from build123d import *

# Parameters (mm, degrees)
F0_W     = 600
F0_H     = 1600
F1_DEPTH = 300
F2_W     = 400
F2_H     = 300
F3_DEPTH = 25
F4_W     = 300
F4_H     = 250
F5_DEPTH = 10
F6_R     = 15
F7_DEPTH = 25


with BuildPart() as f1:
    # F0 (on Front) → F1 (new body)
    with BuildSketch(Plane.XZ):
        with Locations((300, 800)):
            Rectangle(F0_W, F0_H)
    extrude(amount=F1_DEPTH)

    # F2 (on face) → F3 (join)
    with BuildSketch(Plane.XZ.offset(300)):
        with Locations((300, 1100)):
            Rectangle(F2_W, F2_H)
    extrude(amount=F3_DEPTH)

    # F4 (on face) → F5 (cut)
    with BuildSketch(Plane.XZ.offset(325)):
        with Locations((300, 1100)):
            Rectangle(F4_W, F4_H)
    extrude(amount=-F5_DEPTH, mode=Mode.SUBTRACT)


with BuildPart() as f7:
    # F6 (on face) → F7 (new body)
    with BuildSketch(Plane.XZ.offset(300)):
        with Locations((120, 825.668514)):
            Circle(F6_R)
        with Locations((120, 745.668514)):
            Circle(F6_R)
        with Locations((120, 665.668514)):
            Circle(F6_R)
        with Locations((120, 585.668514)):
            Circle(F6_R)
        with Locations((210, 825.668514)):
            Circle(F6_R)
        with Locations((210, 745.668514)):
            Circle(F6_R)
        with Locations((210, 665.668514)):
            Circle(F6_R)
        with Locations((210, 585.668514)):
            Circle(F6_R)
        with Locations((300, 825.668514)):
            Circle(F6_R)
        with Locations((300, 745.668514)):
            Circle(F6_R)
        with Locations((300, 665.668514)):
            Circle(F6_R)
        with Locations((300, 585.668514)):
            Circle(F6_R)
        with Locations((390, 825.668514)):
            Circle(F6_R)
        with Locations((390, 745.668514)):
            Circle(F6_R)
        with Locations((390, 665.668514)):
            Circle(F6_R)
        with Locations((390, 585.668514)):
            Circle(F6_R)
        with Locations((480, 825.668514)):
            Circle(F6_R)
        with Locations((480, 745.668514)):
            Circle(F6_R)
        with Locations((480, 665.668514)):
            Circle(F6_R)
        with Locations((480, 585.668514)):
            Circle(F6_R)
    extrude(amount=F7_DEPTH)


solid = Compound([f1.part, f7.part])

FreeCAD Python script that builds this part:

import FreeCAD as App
import Part
import Sketcher


def add_polygon(sketch, points):
    """Adds a closed chain of lines whose ends are joined by coincident constraints."""
    first, n = sketch.GeometryCount, len(points)
    for a, b in zip(points, points[1:] + points[:1]):
        sketch.addGeometry(Part.LineSegment(App.Vector(*a, 0), App.Vector(*b, 0)), False)
    for i in range(n):
        sketch.addConstraint(Sketcher.Constraint("Coincident", first + i, 2, first + (i + 1) % n, 1))

doc = App.newDocument("Part")
body = doc.addObject("PartDesign::Body", "Body")

sketch1 = doc.addObject("Sketcher::SketchObject", "Sketch")
body.addObject(sketch1)
sketch1.AttachmentSupport = (doc.XZ_Plane, [""])
sketch1.MapMode = "FlatFace"
add_polygon(sketch1, [(0, 1600), (0, 0), (600, 0), (600, 1600)])
sketch1.addConstraint([
    Sketcher.Constraint("Vertical", 0),
    Sketcher.Constraint("Horizontal", 1),
    Sketcher.Constraint("Vertical", 2),
    Sketcher.Constraint("Horizontal", 3),
    Sketcher.Constraint("Coincident", 0, 2, -1, 1),
    Sketcher.Constraint("DistanceX", 1, 1, 1, 2, 600.0),
    Sketcher.Constraint("DistanceY", 0, 2, 0, 1, 1600.0),
])
pad1 = doc.addObject("PartDesign::Pad", "Pad")
body.addObject(pad1)
pad1.Profile = sketch1
pad1.Length = 300

sketch2 = doc.addObject("Sketcher::SketchObject", "Sketch001")
body.addObject(sketch2)
sketch2.AttachmentSupport = (doc.XZ_Plane, [""])
sketch2.MapMode = "FlatFace"
sketch2.AttachmentOffset = App.Placement(App.Vector(0, 0, 300), App.Rotation())
add_polygon(sketch2, [(100, 1250), (100, 950), (500, 950), (500, 1250)])
sketch2.addConstraint([
    Sketcher.Constraint("Vertical", 0),
    Sketcher.Constraint("Horizontal", 1),
    Sketcher.Constraint("Vertical", 2),
    Sketcher.Constraint("Horizontal", 3),
    Sketcher.Constraint("DistanceX", 1, 1, 1, 2, 400.0),
    Sketcher.Constraint("DistanceY", 0, 2, 0, 1, 300.0),
    Sketcher.Constraint("DistanceX", -1, 1, 0, 2, 100.0),
    Sketcher.Constraint("DistanceY", -1, 1, 0, 2, 950.0),
])
pad2 = doc.addObject("PartDesign::Pad", "Pad001")
body.addObject(pad2)
pad2.Profile = sketch2
pad2.Length = 25

sketch3 = doc.addObject("Sketcher::SketchObject", "Sketch002")
body.addObject(sketch3)
sketch3.AttachmentSupport = (doc.XZ_Plane, [""])
sketch3.MapMode = "FlatFace"
sketch3.AttachmentOffset = App.Placement(App.Vector(0, 0, 325), App.Rotation())
add_polygon(sketch3, [(150, 1225), (150, 975), (450, 975), (450, 1225)])
sketch3.addConstraint([
    Sketcher.Constraint("Vertical", 0),
    Sketcher.Constraint("Horizontal", 1),
    Sketcher.Constraint("Vertical", 2),
    Sketcher.Constraint("Horizontal", 3),
    Sketcher.Constraint("DistanceX", 1, 1, 1, 2, 300.0),
    Sketcher.Constraint("DistanceY", 0, 2, 0, 1, 250.0),
    Sketcher.Constraint("DistanceX", -1, 1, 0, 2, 150.0),
    Sketcher.Constraint("DistanceY", -1, 1, 0, 2, 975.0),
])
pocket1 = doc.addObject("PartDesign::Pocket", "Pocket")
body.addObject(pocket1)
pocket1.Profile = sketch3
pocket1.Length = 10
body2 = doc.addObject("PartDesign::Body", "Body001")
body2.AllowCompound = True

sketch4 = doc.addObject("Sketcher::SketchObject", "Sketch003")
body2.addObject(sketch4)
sketch4.AttachmentSupport = (doc.getObject("XZ_Plane001"), [""])
sketch4.MapMode = "FlatFace"
sketch4.AttachmentOffset = App.Placement(App.Vector(0, 0, 300), App.Rotation())
sketch4.addGeometry([
    Part.Circle(App.Vector(120, 825.668514, 0), App.Vector(0, 0, 1), 15),
    Part.Circle(App.Vector(120, 745.668514, 0), App.Vector(0, 0, 1), 15),
    Part.Circle(App.Vector(120, 665.668514, 0), App.Vector(0, 0, 1), 15),
    Part.Circle(App.Vector(120, 585.668514, 0), App.Vector(0, 0, 1), 15),
    Part.Circle(App.Vector(210, 825.668514, 0), App.Vector(0, 0, 1), 15),
    Part.Circle(App.Vector(210, 745.668514, 0), App.Vector(0, 0, 1), 15),
    Part.Circle(App.Vector(210, 665.668514, 0), App.Vector(0, 0, 1), 15),
    Part.Circle(App.Vector(210, 585.668514, 0), App.Vector(0, 0, 1), 15),
    Part.Circle(App.Vector(300, 825.668514, 0), App.Vector(0, 0, 1), 15),
    Part.Circle(App.Vector(300, 745.668514, 0), App.Vector(0, 0, 1), 15),
    Part.Circle(App.Vector(300, 665.668514, 0), App.Vector(0, 0, 1), 15),
    Part.Circle(App.Vector(300, 585.668514, 0), App.Vector(0, 0, 1), 15),
    Part.Circle(App.Vector(390, 825.668514, 0), App.Vector(0, 0, 1), 15),
    Part.Circle(App.Vector(390, 745.668514, 0), App.Vector(0, 0, 1), 15),
    Part.Circle(App.Vector(390, 665.668514, 0), App.Vector(0, 0, 1), 15),
    Part.Circle(App.Vector(390, 585.668514, 0), App.Vector(0, 0, 1), 15),
    Part.Circle(App.Vector(480, 825.668514, 0), App.Vector(0, 0, 1), 15),
    Part.Circle(App.Vector(480, 745.668514, 0), App.Vector(0, 0, 1), 15),
    Part.Circle(App.Vector(480, 665.668514, 0), App.Vector(0, 0, 1), 15),
    Part.Circle(App.Vector(480, 585.668514, 0), App.Vector(0, 0, 1), 15),
], False)
sketch4.addConstraint([
    Sketcher.Constraint("Equal", 0, 1),
    Sketcher.Constraint("Equal", 1, 2),
    Sketcher.Constraint("Equal", 2, 3),
    Sketcher.Constraint("Equal", 3, 4),
    Sketcher.Constraint("Equal", 4, 5),
    Sketcher.Constraint("Equal", 5, 6),
    Sketcher.Constraint("Equal", 6, 7),
    Sketcher.Constraint("Equal", 7, 8),
    Sketcher.Constraint("Equal", 8, 9),
    Sketcher.Constraint("Equal", 9, 10),
    Sketcher.Constraint("Equal", 10, 11),
    Sketcher.Constraint("Equal", 11, 12),
    Sketcher.Constraint("Equal", 12, 13),
    Sketcher.Constraint("Equal", 13, 14),
    Sketcher.Constraint("Equal", 14, 15),
    Sketcher.Constraint("Equal", 15, 16),
    Sketcher.Constraint("Equal", 16, 17),
    Sketcher.Constraint("Equal", 17, 18),
    Sketcher.Constraint("Equal", 18, 19),
    Sketcher.Constraint("Horizontal", 0, 3, 4, 3),
    Sketcher.Constraint("Horizontal", 1, 3, 5, 3),
    Sketcher.Constraint("Horizontal", 2, 3, 6, 3),
    Sketcher.Constraint("Horizontal", 3, 3, 7, 3),
    Sketcher.Constraint("Horizontal", 4, 3, 8, 3),
    Sketcher.Constraint("Horizontal", 5, 3, 9, 3),
    Sketcher.Constraint("Horizontal", 6, 3, 10, 3),
    Sketcher.Constraint("Horizontal", 7, 3, 11, 3),
    Sketcher.Constraint("Horizontal", 8, 3, 12, 3),
    Sketcher.Constraint("Horizontal", 9, 3, 13, 3),
    Sketcher.Constraint("Horizontal", 10, 3, 14, 3),
    Sketcher.Constraint("Horizontal", 11, 3, 15, 3),
    Sketcher.Constraint("Horizontal", 12, 3, 16, 3),
    Sketcher.Constraint("Horizontal", 13, 3, 17, 3),
    Sketcher.Constraint("Horizontal", 14, 3, 18, 3),
    Sketcher.Constraint("Horizontal", 15, 3, 19, 3),
    Sketcher.Constraint("Vertical", 0, 3, 1, 3),
    Sketcher.Constraint("Vertical", 1, 3, 2, 3),
    Sketcher.Constraint("Vertical", 2, 3, 3, 3),
    Sketcher.Constraint("Vertical", 4, 3, 5, 3),
    Sketcher.Constraint("Vertical", 5, 3, 6, 3),
    Sketcher.Constraint("Vertical", 6, 3, 7, 3),
    Sketcher.Constraint("Vertical", 8, 3, 9, 3),
    Sketcher.Constraint("Vertical", 9, 3, 10, 3),
    Sketcher.Constraint("Vertical", 10, 3, 11, 3),
    Sketcher.Constraint("Vertical", 12, 3, 13, 3),
    Sketcher.Constraint("Vertical", 13, 3, 14, 3),
    Sketcher.Constraint("Vertical", 14, 3, 15, 3),
    Sketcher.Constraint("Vertical", 16, 3, 17, 3),
    Sketcher.Constraint("Vertical", 17, 3, 18, 3),
    Sketcher.Constraint("Vertical", 18, 3, 19, 3),
    Sketcher.Constraint("Diameter", 0, 30.0),
    Sketcher.Constraint("DistanceX", -1, 1, 0, 3, 120.0),
    Sketcher.Constraint("DistanceX", -1, 1, 4, 3, 210.0),
    Sketcher.Constraint("DistanceX", -1, 1, 8, 3, 300.0),
    Sketcher.Constraint("DistanceX", -1, 1, 12, 3, 390.0),
    Sketcher.Constraint("DistanceX", -1, 1, 16, 3, 480.0),
    Sketcher.Constraint("DistanceY", 1, 3, 0, 3, 80.0),
    Sketcher.Constraint("DistanceY", 2, 3, 1, 3, 80.0),
    Sketcher.Constraint("DistanceY", 3, 3, 2, 3, 80.0),
    Sketcher.Constraint("DistanceY", -1, 1, 0, 3, 825.668514),
])
pad3 = doc.addObject("PartDesign::Pad", "Pad002")
body2.addObject(pad3)
pad3.Profile = sketch4
pad3.Length = 25

doc.recompute()
